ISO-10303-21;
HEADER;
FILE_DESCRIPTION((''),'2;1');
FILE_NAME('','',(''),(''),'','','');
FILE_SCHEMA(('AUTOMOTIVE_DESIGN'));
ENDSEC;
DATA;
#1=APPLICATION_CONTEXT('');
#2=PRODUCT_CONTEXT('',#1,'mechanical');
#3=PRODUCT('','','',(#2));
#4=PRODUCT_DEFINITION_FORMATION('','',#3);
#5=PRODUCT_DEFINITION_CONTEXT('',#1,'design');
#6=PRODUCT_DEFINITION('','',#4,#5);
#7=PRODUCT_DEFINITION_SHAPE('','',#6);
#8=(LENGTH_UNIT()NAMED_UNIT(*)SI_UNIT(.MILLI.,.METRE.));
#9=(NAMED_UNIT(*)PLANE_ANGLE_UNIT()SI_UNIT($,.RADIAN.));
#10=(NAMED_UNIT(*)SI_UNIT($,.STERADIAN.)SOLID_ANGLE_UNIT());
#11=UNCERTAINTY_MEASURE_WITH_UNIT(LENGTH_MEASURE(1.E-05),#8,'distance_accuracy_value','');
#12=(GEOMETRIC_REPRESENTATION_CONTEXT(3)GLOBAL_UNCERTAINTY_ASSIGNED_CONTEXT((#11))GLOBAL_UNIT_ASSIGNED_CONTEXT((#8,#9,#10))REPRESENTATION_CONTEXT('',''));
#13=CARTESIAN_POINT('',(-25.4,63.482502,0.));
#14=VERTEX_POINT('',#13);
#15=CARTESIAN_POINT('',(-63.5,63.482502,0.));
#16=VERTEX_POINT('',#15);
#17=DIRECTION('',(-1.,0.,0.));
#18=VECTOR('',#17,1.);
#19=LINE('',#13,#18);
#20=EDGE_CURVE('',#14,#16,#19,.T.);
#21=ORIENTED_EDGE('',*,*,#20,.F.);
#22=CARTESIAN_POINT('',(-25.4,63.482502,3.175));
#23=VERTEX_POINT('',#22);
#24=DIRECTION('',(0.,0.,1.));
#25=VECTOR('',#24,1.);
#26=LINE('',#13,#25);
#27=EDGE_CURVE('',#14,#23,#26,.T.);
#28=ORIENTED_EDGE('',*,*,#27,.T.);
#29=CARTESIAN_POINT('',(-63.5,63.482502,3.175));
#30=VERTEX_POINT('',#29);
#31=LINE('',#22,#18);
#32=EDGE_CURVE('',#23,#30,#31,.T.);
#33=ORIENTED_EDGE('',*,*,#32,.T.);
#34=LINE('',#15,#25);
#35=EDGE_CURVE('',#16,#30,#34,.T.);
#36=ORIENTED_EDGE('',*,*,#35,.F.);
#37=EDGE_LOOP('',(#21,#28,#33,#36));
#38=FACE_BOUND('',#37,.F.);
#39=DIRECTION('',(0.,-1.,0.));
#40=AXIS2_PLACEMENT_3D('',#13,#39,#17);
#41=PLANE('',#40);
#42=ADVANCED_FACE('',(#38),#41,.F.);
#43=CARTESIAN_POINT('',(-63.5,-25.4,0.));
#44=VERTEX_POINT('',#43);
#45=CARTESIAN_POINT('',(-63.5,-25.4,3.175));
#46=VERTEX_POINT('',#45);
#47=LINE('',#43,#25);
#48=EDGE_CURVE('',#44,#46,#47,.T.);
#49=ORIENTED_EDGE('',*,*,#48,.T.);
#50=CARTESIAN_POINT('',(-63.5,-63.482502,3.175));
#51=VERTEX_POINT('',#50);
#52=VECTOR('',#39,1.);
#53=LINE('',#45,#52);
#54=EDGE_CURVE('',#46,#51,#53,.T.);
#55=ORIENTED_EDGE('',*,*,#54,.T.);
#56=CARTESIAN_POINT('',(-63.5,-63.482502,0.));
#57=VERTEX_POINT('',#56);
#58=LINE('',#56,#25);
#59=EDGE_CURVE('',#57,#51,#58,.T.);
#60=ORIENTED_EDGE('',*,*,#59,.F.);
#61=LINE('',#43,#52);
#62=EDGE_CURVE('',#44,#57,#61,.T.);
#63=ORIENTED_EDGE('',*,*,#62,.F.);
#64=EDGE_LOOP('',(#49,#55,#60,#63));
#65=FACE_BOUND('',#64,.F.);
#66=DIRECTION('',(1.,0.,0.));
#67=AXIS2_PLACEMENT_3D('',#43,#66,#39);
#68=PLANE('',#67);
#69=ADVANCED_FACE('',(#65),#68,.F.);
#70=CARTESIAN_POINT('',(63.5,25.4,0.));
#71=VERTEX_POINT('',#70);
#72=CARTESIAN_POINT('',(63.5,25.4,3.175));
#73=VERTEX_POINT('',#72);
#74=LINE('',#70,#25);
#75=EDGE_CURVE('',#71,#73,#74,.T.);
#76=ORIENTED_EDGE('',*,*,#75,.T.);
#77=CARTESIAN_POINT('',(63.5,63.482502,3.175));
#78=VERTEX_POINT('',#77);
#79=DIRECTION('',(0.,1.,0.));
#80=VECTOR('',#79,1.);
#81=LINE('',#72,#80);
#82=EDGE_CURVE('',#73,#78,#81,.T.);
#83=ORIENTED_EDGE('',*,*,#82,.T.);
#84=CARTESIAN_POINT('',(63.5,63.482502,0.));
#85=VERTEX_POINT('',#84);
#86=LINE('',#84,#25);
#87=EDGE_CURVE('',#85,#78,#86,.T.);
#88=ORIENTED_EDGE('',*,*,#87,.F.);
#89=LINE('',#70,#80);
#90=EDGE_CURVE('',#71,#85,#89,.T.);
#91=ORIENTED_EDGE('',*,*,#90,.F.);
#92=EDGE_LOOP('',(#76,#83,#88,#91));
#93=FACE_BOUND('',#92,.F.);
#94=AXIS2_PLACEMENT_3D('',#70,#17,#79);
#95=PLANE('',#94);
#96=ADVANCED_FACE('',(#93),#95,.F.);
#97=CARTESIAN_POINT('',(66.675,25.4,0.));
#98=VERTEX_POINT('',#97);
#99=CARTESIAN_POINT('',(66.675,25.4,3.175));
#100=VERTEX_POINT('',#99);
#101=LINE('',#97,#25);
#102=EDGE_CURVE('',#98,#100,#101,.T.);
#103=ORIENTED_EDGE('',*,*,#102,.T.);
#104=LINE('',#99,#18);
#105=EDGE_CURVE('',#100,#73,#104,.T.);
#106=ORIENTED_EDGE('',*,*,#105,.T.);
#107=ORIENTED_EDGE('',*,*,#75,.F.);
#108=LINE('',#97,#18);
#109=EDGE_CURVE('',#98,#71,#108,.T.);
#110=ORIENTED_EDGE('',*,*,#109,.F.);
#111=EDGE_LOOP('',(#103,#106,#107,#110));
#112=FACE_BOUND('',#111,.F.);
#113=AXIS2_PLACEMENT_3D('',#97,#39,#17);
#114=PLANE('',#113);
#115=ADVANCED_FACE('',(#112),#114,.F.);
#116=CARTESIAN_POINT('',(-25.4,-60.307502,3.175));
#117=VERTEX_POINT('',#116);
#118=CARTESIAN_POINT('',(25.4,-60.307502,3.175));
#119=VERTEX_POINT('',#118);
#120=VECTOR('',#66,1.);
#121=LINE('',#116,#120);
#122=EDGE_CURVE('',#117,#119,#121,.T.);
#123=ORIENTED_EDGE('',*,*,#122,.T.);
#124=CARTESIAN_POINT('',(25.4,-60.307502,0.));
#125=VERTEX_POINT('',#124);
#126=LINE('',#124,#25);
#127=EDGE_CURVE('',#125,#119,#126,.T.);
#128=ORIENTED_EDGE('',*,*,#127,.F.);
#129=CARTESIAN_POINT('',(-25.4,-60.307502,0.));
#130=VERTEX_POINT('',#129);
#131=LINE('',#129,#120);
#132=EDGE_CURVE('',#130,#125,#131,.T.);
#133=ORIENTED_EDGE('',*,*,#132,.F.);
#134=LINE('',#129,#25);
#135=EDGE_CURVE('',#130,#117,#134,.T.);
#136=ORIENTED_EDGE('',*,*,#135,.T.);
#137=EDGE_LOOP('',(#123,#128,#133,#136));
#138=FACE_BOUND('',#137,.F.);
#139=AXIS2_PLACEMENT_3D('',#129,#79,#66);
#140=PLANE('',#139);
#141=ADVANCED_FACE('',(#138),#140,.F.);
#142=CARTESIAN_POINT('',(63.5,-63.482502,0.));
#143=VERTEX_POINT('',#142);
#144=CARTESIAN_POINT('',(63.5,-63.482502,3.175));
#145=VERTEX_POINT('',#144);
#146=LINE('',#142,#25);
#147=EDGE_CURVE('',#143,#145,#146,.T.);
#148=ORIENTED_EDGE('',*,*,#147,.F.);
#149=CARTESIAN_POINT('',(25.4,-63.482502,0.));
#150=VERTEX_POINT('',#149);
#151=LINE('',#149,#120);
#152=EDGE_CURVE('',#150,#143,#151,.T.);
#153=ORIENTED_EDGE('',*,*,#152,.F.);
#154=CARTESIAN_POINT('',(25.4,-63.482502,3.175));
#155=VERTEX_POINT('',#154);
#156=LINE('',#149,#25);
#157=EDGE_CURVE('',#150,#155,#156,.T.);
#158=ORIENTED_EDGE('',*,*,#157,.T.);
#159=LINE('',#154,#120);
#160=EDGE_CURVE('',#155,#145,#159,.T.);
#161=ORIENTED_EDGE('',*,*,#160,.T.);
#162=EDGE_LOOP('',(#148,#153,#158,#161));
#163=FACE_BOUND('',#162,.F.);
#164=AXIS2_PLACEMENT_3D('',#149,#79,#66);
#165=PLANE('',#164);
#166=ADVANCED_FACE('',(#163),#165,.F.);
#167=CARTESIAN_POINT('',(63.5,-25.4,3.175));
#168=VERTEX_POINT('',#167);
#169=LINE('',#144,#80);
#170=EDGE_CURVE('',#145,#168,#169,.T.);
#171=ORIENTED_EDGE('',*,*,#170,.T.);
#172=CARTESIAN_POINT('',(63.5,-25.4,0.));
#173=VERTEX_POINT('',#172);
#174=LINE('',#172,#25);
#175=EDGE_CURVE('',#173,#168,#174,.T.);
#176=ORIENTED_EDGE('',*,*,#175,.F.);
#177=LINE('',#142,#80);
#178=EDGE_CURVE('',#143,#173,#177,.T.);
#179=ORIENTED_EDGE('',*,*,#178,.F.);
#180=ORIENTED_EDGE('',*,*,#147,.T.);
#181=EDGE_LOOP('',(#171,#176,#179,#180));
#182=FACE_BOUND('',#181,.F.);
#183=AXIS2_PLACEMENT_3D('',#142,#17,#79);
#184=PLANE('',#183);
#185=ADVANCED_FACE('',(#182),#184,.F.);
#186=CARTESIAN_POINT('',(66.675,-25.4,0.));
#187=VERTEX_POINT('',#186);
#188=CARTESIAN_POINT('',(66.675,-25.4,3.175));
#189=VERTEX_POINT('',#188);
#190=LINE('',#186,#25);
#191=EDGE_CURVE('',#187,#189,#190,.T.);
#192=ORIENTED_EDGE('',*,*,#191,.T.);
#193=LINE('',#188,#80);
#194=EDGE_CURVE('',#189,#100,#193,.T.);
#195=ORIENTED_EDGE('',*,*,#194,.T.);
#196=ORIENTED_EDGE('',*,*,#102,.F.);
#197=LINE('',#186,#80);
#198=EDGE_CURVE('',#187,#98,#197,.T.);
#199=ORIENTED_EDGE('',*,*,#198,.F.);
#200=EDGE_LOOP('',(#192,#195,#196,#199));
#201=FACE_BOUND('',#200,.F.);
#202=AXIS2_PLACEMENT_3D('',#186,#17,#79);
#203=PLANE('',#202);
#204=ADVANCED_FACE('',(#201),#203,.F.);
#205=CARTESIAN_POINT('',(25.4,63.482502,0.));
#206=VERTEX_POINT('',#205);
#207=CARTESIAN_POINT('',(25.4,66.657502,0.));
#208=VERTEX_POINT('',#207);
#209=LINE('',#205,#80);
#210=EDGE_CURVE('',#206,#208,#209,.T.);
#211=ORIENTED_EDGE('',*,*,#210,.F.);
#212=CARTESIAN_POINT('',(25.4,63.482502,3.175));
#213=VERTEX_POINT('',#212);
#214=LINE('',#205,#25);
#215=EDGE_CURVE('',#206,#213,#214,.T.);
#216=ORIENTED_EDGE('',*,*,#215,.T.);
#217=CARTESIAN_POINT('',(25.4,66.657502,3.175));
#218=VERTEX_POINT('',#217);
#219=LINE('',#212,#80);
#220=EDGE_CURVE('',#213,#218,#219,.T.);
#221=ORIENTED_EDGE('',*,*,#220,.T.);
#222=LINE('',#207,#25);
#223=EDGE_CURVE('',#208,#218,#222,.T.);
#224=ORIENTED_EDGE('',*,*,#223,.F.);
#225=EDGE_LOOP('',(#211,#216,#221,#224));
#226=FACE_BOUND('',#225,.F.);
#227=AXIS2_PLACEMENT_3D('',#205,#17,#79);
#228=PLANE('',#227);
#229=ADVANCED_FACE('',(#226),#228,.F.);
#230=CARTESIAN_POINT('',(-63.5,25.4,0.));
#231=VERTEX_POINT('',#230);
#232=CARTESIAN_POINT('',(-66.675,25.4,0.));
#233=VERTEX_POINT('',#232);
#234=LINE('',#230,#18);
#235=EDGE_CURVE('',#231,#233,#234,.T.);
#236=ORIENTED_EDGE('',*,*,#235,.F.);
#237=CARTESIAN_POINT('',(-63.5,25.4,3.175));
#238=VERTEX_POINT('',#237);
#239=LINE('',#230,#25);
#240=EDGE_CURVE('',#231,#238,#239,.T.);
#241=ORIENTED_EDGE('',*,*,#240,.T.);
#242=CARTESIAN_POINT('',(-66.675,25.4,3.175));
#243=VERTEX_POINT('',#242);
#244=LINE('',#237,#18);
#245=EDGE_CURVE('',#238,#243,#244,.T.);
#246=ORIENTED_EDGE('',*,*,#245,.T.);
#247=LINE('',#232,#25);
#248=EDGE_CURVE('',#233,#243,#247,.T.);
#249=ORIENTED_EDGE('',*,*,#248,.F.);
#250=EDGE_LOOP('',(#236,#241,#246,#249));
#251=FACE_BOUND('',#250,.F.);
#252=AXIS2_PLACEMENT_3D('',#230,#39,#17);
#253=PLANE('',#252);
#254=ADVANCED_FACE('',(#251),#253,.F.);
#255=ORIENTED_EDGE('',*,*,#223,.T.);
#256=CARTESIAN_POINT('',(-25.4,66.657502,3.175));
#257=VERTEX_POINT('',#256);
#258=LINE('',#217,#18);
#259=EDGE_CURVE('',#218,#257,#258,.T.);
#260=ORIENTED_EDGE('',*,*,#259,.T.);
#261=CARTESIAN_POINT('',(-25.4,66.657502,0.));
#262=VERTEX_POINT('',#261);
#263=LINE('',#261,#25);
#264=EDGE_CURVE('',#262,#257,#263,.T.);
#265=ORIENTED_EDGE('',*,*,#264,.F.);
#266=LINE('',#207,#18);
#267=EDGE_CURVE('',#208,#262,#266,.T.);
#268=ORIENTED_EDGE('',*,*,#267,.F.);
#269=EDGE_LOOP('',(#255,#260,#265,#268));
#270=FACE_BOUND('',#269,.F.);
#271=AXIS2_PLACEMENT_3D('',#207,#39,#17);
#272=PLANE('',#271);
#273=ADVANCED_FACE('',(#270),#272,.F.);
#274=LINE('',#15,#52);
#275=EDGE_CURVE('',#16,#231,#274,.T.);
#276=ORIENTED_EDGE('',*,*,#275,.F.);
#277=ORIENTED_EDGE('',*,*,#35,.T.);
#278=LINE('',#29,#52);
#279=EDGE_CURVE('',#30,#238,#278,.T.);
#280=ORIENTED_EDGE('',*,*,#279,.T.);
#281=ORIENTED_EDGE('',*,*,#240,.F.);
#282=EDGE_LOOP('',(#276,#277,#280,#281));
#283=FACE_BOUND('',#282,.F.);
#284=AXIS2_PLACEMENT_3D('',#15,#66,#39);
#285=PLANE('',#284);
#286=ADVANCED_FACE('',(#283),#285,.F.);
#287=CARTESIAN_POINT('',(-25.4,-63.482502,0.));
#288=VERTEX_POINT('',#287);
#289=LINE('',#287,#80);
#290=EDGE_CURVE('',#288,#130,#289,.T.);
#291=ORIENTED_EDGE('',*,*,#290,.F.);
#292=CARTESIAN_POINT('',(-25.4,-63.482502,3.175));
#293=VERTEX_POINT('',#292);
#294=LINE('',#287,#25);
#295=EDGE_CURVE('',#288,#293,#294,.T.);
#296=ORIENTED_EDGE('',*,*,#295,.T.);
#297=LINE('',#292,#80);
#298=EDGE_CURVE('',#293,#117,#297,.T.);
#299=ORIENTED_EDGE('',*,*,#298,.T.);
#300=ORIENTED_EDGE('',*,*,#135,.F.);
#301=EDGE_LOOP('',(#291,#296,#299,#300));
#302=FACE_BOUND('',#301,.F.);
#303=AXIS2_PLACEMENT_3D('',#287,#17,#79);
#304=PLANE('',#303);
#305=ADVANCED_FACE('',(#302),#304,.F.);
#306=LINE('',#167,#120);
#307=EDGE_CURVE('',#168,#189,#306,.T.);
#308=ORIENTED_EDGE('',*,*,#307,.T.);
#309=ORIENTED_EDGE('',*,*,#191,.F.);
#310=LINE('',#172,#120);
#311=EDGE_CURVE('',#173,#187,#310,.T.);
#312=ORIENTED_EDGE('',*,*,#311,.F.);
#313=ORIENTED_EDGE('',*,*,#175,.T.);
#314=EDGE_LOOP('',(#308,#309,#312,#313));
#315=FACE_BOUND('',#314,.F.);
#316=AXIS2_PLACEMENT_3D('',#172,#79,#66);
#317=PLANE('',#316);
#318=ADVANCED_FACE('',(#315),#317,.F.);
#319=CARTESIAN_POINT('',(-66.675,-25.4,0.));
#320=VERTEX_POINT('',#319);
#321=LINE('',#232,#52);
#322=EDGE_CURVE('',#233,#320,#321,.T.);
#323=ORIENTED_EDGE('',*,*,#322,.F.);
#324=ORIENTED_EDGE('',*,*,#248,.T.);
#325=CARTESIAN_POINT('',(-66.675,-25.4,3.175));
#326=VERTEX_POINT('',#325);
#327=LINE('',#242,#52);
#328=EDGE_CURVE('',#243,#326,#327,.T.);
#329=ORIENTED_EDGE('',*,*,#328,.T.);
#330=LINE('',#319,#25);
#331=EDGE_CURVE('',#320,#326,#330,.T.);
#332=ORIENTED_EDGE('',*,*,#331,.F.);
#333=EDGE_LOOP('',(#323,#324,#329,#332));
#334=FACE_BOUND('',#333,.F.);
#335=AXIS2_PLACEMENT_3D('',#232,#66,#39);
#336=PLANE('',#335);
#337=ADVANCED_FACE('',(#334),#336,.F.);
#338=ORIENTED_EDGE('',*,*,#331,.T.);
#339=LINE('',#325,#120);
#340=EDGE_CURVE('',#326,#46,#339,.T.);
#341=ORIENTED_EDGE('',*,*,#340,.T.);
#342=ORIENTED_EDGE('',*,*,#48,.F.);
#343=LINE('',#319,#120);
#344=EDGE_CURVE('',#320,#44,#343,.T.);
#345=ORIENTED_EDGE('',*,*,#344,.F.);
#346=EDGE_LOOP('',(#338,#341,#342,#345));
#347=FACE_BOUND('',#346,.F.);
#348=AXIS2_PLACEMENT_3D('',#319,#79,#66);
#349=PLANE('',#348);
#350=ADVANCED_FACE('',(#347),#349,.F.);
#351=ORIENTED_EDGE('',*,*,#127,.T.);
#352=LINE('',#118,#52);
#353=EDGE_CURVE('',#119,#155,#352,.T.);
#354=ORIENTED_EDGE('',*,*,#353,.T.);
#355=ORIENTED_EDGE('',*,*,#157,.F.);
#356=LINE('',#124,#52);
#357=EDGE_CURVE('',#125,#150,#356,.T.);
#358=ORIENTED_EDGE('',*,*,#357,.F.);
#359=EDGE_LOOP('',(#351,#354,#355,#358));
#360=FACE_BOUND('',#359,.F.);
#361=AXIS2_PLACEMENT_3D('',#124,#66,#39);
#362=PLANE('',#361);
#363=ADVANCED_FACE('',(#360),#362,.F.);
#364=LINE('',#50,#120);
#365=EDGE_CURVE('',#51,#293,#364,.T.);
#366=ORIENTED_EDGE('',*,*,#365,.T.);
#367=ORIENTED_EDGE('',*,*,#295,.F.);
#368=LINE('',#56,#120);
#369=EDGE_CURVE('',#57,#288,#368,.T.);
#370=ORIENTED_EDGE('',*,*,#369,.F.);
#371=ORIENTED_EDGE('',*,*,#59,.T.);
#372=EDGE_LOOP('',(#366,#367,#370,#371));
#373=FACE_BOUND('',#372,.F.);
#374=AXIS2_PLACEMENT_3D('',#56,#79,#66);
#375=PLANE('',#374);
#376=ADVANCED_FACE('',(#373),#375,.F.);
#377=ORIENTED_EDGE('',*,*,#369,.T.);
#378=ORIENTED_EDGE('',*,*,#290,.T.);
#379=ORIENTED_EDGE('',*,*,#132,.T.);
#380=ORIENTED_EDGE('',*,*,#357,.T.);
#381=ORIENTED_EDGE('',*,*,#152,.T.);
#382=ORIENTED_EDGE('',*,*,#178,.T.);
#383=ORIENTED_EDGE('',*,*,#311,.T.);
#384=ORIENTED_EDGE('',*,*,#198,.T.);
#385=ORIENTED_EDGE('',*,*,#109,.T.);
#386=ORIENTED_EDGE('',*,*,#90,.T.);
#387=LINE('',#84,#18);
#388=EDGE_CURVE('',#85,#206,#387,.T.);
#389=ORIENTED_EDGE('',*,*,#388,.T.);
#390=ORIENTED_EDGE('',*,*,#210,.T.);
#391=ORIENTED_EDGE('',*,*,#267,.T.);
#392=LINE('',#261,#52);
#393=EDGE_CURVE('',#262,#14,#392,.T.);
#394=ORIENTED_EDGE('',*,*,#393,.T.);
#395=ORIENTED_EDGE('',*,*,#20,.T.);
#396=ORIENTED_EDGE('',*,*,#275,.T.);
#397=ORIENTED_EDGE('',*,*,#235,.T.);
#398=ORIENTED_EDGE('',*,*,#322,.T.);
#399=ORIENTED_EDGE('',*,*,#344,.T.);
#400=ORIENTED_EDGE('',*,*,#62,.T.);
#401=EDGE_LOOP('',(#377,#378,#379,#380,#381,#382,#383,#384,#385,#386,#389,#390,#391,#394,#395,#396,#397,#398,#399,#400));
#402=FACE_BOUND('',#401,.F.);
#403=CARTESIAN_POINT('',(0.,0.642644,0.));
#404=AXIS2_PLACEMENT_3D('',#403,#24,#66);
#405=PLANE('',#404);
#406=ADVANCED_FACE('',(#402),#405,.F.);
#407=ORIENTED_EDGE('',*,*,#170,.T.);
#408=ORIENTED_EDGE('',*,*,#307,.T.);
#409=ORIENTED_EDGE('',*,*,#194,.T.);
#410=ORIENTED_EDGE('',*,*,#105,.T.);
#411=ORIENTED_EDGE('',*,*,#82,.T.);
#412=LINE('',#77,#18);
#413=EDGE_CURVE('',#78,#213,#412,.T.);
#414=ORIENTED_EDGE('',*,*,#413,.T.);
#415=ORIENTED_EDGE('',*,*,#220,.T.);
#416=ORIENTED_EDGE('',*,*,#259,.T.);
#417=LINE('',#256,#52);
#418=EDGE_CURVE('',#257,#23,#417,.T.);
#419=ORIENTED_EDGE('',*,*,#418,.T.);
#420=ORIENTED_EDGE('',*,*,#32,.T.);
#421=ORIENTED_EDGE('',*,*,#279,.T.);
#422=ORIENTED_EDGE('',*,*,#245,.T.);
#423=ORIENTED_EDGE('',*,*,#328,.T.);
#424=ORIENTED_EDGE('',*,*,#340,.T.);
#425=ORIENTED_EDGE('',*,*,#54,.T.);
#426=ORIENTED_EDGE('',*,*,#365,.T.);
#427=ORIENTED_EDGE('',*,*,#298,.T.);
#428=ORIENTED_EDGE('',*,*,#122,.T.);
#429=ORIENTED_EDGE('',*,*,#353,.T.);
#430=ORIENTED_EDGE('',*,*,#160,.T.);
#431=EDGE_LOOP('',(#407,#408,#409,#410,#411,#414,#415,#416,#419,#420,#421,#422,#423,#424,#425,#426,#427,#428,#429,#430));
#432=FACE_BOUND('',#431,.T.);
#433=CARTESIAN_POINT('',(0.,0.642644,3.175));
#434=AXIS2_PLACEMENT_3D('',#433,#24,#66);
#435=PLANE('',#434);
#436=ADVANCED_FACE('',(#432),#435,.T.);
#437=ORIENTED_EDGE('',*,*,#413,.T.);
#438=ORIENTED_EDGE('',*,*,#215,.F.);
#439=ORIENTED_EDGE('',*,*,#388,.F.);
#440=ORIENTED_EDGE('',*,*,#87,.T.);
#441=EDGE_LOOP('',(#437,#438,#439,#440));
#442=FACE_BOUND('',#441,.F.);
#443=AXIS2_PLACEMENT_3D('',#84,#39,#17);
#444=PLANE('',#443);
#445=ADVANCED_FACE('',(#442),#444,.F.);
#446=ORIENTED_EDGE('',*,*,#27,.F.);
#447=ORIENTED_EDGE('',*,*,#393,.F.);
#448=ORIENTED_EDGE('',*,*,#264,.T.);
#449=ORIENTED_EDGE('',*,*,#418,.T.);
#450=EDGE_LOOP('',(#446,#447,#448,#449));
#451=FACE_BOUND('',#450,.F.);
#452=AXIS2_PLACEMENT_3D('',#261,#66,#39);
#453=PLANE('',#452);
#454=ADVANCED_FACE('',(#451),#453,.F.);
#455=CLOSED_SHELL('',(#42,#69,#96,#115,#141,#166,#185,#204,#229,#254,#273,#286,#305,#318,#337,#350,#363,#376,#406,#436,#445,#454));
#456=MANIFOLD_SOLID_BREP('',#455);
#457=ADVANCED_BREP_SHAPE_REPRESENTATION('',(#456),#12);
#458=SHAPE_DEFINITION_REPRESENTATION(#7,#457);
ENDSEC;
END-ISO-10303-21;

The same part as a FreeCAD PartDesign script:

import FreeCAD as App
import Part
import Sketcher

V = App.Vector
Q = App.Units.Quantity

doc = App.newDocument("Part")
body = doc.addObject("PartDesign::Body", "Body")

sketch1 = doc.addObject("Sketcher::SketchObject", "Sketch")
body.addObject(sketch1)
sketch1.AttachmentSupport = (doc.XY_Plane, [""])
sketch1.MapMode = "FlatFace"
sketch1.addGeometry([
    Part.LineSegment(V(25.4, -63.5, 0), V(63.5, -63.5, 0)),
    Part.LineSegment(V(63.5, -63.5, 0), V(63.5, -25.4, 0)),
    Part.LineSegment(V(63.5, -25.4, 0), V(66.7, -25.4, 0)),
    Part.LineSegment(V(66.7, -25.4, 0), V(66.7, 25.4, 0)),
    Part.LineSegment(V(66.7, 25.4, 0), V(63.5, 25.4, 0)),
    Part.LineSegment(V(63.5, 25.4, 0), V(63.5, 63.5, 0)),
    Part.LineSegment(V(63.5, 63.5, 0), V(25.4, 63.5, 0)),
    Part.LineSegment(V(25.4, 63.5, 0), V(25.4, 66.7, 0)),
    Part.LineSegment(V(25.4, 66.7, 0), V(-25.4, 66.7, 0)),
    Part.LineSegment(V(-25.4, 66.7, 0), V(-25.4, 63.5, 0)),
    Part.LineSegment(V(-25.4, 63.5, 0), V(-63.5, 63.5, 0)),
    Part.LineSegment(V(-63.5, 63.5, 0), V(-63.5, 25.4, 0)),
    Part.LineSegment(V(-63.5, 25.4, 0), V(-66.7, 25.4, 0)),
    Part.LineSegment(V(-66.7, 25.4, 0), V(-66.7, -25.4, 0)),
    Part.LineSegment(V(-66.7, -25.4, 0), V(-63.5, -25.4, 0)),
    Part.LineSegment(V(-63.5, -25.4, 0), V(-63.5, -63.5, 0)),
    Part.LineSegment(V(-63.5, -63.5, 0), V(-25.4, -63.5, 0)),
    Part.LineSegment(V(-25.4, -63.5, 0), V(-25.4, -60.3, 0)),
    Part.LineSegment(V(-25.4, -60.3, 0), V(25.4, -60.3, 0)),
    Part.LineSegment(V(25.4, -60.3, 0), V(25.4, -63.5, 0)),
], False)
sketch1.addConstraint([
    Sketcher.Constraint("Coincident", 0, 2, 1, 1),
    Sketcher.Constraint("Coincident", 1, 2, 2, 1),
    Sketcher.Constraint("Coincident", 2, 2, 3, 1),
    Sketcher.Constraint("Coincident", 3, 2, 4, 1),
    Sketcher.Constraint("Coincident", 4, 2, 5, 1),
    Sketcher.Constraint("Coincident", 5, 2, 6, 1),
    Sketcher.Constraint("Coincident", 6, 2, 7, 1),
    Sketcher.Constraint("Coincident", 7, 2, 8, 1),
    Sketcher.Constraint("Coincident", 8, 2, 9, 1),
    Sketcher.Constraint("Coincident", 9, 2, 10, 1),
    Sketcher.Constraint("Coincident", 10, 2, 11, 1),
    Sketcher.Constraint("Coincident", 11, 2, 12, 1),
    Sketcher.Constraint("Coincident", 12, 2, 13, 1),
    Sketcher.Constraint("Coincident", 13, 2, 14, 1),
    Sketcher.Constraint("Coincident", 14, 2, 15, 1),
    Sketcher.Constraint("Coincident", 15, 2, 16, 1),
    Sketcher.Constraint("Coincident", 16, 2, 17, 1),
    Sketcher.Constraint("Coincident", 17, 2, 18, 1),
    Sketcher.Constraint("Coincident", 18, 2, 19, 1),
    Sketcher.Constraint("Coincident", 19, 2, 0, 1),
    Sketcher.Constraint("Horizontal", 0),
    Sketcher.Constraint("Vertical", 1),
    Sketcher.Constraint("Horizontal", 2),
    Sketcher.Constraint("Vertical", 3),
    Sketcher.Constraint("Horizontal", 4),
    Sketcher.Constraint("Vertical", 5),
    Sketcher.Constraint("Horizontal", 6),
    Sketcher.Constraint("Vertical", 7),
    Sketcher.Constraint("Horizontal", 8),
    Sketcher.Constraint("Vertical", 9),
    Sketcher.Constraint("Horizontal", 10),
    Sketcher.Constraint("Vertical", 11),
    Sketcher.Constraint("Horizontal", 12),
    Sketcher.Constraint("Vertical", 13),
    Sketcher.Constraint("Horizontal", 14),
    Sketcher.Constraint("Vertical", 15),
    Sketcher.Constraint("Horizontal", 16),
    Sketcher.Constraint("Vertical", 17),
    Sketcher.Constraint("Horizontal", 18),
    Sketcher.Constraint("Vertical", 19),
    Sketcher.Constraint("Symmetric", 0, 2, 10, 2, -1, 1),
    Sketcher.Constraint("Symmetric", 2, 2, 12, 2, -1, 1),
    Sketcher.Constraint("Symmetric", 4, 2, 14, 2, -1, 1),
    Sketcher.Constraint("Symmetric", 6, 2, 16, 2, -1, 1),
    Sketcher.Constraint("Symmetric", 6, 2, 9, 2, -2),
    Sketcher.Constraint("Symmetric", 4, 2, 11, 2, -2),
    Sketcher.Constraint("Vertical", 7, 2, 18, 2),
    Sketcher.Constraint("Equal", 18, 3),
    Sketcher.Constraint("Equal", 14, 7),
    Sketcher.Constraint("Equal", 9, 17),
    Sketcher.Constraint("DistanceX", 8, 2, 8, 1, Q("2 in")),
    Sketcher.Constraint("DistanceX", 0, 1, 0, 2, Q("1.5 in")),
    Sketcher.Constraint("DistanceX", 2, 1, 2, 2, Q("0.125 in")),
    Sketcher.Constraint("DistanceY", 1, 1, 1, 2, Q("38.082502 mm")),
])
pad1 = doc.addObject("PartDesign::Pad", "Pad")
body.addObject(pad1)
pad1.Profile = sketch1
pad1.Length = Q("0.125 in")

doc.recompute()
